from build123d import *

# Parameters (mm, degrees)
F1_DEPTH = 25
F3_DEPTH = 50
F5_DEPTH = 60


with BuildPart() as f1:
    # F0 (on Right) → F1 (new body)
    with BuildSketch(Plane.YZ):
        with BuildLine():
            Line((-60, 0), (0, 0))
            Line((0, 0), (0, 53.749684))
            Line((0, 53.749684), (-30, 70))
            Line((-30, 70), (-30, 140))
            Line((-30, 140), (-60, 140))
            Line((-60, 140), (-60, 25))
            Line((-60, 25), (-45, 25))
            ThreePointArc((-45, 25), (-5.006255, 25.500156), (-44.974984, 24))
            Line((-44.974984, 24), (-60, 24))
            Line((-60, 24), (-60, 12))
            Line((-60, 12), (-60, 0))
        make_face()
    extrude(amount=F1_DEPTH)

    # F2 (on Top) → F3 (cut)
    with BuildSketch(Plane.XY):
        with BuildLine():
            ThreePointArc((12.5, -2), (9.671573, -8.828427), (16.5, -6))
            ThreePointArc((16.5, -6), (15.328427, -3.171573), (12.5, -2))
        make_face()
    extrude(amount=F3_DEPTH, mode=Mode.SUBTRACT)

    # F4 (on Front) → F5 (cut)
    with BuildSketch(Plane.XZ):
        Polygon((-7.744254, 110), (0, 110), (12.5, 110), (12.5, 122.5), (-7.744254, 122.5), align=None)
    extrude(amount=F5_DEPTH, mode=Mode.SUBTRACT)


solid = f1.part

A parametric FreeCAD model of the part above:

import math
import FreeCAD as App
import Part
import Sketcher
Q = App.Units.Quantity


def add_polygon(sketch, points):
    """Adds a closed chain of lines whose ends are joined by coincident constraints."""
    first, n = sketch.GeometryCount, len(points)
    for a, b in zip(points, points[1:] + points[:1]):
        sketch.addGeometry(Part.LineSegment(App.Vector(*a, 0), App.Vector(*b, 0)), False)
    for i in range(n):
        sketch.addConstraint(Sketcher.Constraint("Coincident", first + i, 2, first + (i + 1) % n, 1))

doc = App.newDocument("Part")
body = doc.addObject("PartDesign::Body", "Body")

sketch1 = body.newObject("Sketcher::SketchObject", "Sketch")
sketch1.AttachmentSupport = (doc.getObject("YZ_Plane"), [""])
sketch1.MapMode = "FlatFace"
sketch1.addGeometry(Part.LineSegment(App.Vector(-60, 0, 0), App.Vector(0, 0, 0)), False)
sketch1.addGeometry(Part.LineSegment(App.Vector(0, 0, 0), App.Vector(0, 53.7, 0)), False)
sketch1.addGeometry(Part.LineSegment(App.Vector(0, 53.7, 0), App.Vector(-30, 70, 0)), False)
sketch1.addGeometry(Part.LineSegment(App.Vector(-30, 70, 0), App.Vector(-30, 140, 0)), False)
sketch1.addGeometry(Part.LineSegment(App.Vector(-30, 140, 0), App.Vector(-60, 140, 0)), False)
sketch1.addGeometry(Part.LineSegment(App.Vector(-60, 140, 0), App.Vector(-60, 25, 0)), False)
sketch1.addGeometry(Part.LineSegment(App.Vector(-60, 25, 0), App.Vector(-45, 25, 0)), False)
sketch1.addGeometry(Part.ArcOfCircle(Part.Circle(App.Vector(-25, 25, 0), App.Vector(0, 0, 1), 20), math.radians(-177), math.radians(180)), False)
sketch1.addGeometry(Part.LineSegment(App.Vector(-45, 24, 0), App.Vector(-60, 24, 0)), False)
sketch1.addGeometry(Part.LineSegment(App.Vector(-60, 24, 0), App.Vector(-60, 0, 0)), False)
sketch1.addConstraint(Sketcher.Constraint("Coincident", 0, 2, 1, 1))
sketch1.addConstraint(Sketcher.Constraint("Coincident", 1, 2, 2, 1))
sketch1.addConstraint(Sketcher.Constraint("Coincident", 2, 2, 3, 1))
sketch1.addConstraint(Sketcher.Constraint("Coincident", 3, 2, 4, 1))
sketch1.addConstraint(Sketcher.Constraint("Coincident", 4, 2, 5, 1))
sketch1.addConstraint(Sketcher.Constraint("Coincident", 5, 2, 6, 1))
sketch1.addConstraint(Sketcher.Constraint("Coincident", 6, 2, 7, 2))
sketch1.addConstraint(Sketcher.Constraint("Coincident", 7, 1, 8, 1))
sketch1.addConstraint(Sketcher.Constraint("Coincident", 8, 2, 9, 1))
sketch1.addConstraint(Sketcher.Constraint("Coincident", 9, 2, 0, 1))
sketch1.addConstraint(Sketcher.Constraint("Horizontal", 0))
sketch1.addConstraint(Sketcher.Constraint("Vertical", 1))
sketch1.addConstraint(Sketcher.Constraint("Vertical", 3))
sketch1.addConstraint(Sketcher.Constraint("Horizontal", 4))
sketch1.addConstraint(Sketcher.Constraint("Vertical", 5))
sketch1.addConstraint(Sketcher.Constraint("Horizontal", 6))
sketch1.addConstraint(Sketcher.Constraint("Horizontal", 8))
sketch1.addConstraint(Sketcher.Constraint("Vertical", 9))
sketch1.addConstraint(Sketcher.Constraint("Coincident", 0, 2, -1, 1))
sketch1.addConstraint(Sketcher.Constraint("Vertical", 5, 2, 8, 2))
sketch1.addConstraint(Sketcher.Constraint("Radius", 7, Q("20 mm")))
sketch1.addConstraint(Sketcher.Constraint("DistanceX", 0, 1, 0, 2, Q("60 mm")))
sketch1.addConstraint(Sketcher.Constraint("DistanceX", 4, 2, 4, 1, Q("30 mm")))
sketch1.addConstraint(Sketcher.Constraint("DistanceX", 6, 1, 6, 2, Q("15 mm")))
sketch1.addConstraint(Sketcher.Constraint("DistanceY", 3, 1, 3, 2, Q("70 mm")))
sketch1.addConstraint(Sketcher.Constraint("DistanceY", 5, 2, 5, 1, Q("115 mm")))
sketch1.addConstraint(Sketcher.Constraint("DistanceY", 9, 2, 9, 1, Q("24 mm")))
sketch1.addConstraint(Sketcher.Constraint("DistanceY", -1, 1, 2, 2, Q("70 mm")))
sketch1.addConstraint(Sketcher.Constraint("Distance", 2, Q("34.118511 mm")))
sketch1.addConstraint(Sketcher.Constraint("DistanceX", 8, 2, 8, 1, Q("15.025016 mm")))
pad1 = body.newObject("PartDesign::Pad", "Pad")
pad1.Profile = sketch1
pad1.Length = 25

sketch2 = body.newObject("Sketcher::SketchObject", "Sketch001")
sketch2.AttachmentSupport = (doc.getObject("XY_Plane"), [""])
sketch2.MapMode = "FlatFace"
sketch2.addGeometry(Part.ArcOfCircle(Part.Circle(App.Vector(12.5, -6, 0), App.Vector(0, 0, 1), 4), math.radians(90), math.radians(360)), False)
sketch2.addGeometry(Part.ArcOfCircle(Part.Circle(App.Vector(12.5, -6, 0), App.Vector(0, 0, 1), 4), math.radians(0), math.radians(90)), False)
sketch2.addConstraint(Sketcher.Constraint("Tangent", 0, 1, 1, 2))
sketch2.addConstraint(Sketcher.Constraint("Coincident", 1, 1, 0, 2))
sketch2.addConstraint(Sketcher.Constraint("Horizontal", 0, 3, 1, 1))
sketch2.addConstraint(Sketcher.Constraint("Vertical", 1, 3, 0, 1))
sketch2.addConstraint(Sketcher.Constraint("Radius", 0, Q("4 mm")))
sketch2.addConstraint(Sketcher.Constraint("DistanceY", 0, 3, -1, 1, Q("6 mm")))
sketch2.addConstraint(Sketcher.Constraint("DistanceX", -1, 1, 0, 3, Q("12.5 mm")))
pocket1 = body.newObject("PartDesign::Pocket", "Pocket")
pocket1.Profile = sketch2
pocket1.Length = 50
pocket1.Reversed = True

sketch3 = body.newObject("Sketcher::SketchObject", "Sketch002")
sketch3.AttachmentSupport = (doc.getObject("XZ_Plane"), [""])
sketch3.MapMode = "FlatFace"
add_polygon(sketch3, [(-8, 110), (12, 110), (12, 122), (-8, 122)])
sketch3.addConstraint(Sketcher.Constraint("Horizontal", 0))
sketch3.addConstraint(Sketcher.Constraint("Vertical", 1))
sketch3.addConstraint(Sketcher.Constraint("Horizontal", 2))
sketch3.addConstraint(Sketcher.Constraint("Vertical", 3))
sketch3.addConstraint(Sketcher.Constraint("DistanceY", 1, 1, 1, 2, Q("12.5 mm")))
sketch3.addConstraint(Sketcher.Constraint("DistanceY", -1, 1, 0, 2, Q("110 mm")))
sketch3.addConstraint(Sketcher.Constraint("DistanceX", -1, 1, 0, 2, Q("12.5 mm")))
sketch3.addConstraint(Sketcher.Constraint("DistanceX", 0, 1, 0, 2, Q("20.244254 mm")))
pocket2 = body.newObject("PartDesign::Pocket", "Pocket001")
pocket2.Profile = sketch3
pocket2.Length = 60
pocket2.Reversed = True

doc.recompute()
